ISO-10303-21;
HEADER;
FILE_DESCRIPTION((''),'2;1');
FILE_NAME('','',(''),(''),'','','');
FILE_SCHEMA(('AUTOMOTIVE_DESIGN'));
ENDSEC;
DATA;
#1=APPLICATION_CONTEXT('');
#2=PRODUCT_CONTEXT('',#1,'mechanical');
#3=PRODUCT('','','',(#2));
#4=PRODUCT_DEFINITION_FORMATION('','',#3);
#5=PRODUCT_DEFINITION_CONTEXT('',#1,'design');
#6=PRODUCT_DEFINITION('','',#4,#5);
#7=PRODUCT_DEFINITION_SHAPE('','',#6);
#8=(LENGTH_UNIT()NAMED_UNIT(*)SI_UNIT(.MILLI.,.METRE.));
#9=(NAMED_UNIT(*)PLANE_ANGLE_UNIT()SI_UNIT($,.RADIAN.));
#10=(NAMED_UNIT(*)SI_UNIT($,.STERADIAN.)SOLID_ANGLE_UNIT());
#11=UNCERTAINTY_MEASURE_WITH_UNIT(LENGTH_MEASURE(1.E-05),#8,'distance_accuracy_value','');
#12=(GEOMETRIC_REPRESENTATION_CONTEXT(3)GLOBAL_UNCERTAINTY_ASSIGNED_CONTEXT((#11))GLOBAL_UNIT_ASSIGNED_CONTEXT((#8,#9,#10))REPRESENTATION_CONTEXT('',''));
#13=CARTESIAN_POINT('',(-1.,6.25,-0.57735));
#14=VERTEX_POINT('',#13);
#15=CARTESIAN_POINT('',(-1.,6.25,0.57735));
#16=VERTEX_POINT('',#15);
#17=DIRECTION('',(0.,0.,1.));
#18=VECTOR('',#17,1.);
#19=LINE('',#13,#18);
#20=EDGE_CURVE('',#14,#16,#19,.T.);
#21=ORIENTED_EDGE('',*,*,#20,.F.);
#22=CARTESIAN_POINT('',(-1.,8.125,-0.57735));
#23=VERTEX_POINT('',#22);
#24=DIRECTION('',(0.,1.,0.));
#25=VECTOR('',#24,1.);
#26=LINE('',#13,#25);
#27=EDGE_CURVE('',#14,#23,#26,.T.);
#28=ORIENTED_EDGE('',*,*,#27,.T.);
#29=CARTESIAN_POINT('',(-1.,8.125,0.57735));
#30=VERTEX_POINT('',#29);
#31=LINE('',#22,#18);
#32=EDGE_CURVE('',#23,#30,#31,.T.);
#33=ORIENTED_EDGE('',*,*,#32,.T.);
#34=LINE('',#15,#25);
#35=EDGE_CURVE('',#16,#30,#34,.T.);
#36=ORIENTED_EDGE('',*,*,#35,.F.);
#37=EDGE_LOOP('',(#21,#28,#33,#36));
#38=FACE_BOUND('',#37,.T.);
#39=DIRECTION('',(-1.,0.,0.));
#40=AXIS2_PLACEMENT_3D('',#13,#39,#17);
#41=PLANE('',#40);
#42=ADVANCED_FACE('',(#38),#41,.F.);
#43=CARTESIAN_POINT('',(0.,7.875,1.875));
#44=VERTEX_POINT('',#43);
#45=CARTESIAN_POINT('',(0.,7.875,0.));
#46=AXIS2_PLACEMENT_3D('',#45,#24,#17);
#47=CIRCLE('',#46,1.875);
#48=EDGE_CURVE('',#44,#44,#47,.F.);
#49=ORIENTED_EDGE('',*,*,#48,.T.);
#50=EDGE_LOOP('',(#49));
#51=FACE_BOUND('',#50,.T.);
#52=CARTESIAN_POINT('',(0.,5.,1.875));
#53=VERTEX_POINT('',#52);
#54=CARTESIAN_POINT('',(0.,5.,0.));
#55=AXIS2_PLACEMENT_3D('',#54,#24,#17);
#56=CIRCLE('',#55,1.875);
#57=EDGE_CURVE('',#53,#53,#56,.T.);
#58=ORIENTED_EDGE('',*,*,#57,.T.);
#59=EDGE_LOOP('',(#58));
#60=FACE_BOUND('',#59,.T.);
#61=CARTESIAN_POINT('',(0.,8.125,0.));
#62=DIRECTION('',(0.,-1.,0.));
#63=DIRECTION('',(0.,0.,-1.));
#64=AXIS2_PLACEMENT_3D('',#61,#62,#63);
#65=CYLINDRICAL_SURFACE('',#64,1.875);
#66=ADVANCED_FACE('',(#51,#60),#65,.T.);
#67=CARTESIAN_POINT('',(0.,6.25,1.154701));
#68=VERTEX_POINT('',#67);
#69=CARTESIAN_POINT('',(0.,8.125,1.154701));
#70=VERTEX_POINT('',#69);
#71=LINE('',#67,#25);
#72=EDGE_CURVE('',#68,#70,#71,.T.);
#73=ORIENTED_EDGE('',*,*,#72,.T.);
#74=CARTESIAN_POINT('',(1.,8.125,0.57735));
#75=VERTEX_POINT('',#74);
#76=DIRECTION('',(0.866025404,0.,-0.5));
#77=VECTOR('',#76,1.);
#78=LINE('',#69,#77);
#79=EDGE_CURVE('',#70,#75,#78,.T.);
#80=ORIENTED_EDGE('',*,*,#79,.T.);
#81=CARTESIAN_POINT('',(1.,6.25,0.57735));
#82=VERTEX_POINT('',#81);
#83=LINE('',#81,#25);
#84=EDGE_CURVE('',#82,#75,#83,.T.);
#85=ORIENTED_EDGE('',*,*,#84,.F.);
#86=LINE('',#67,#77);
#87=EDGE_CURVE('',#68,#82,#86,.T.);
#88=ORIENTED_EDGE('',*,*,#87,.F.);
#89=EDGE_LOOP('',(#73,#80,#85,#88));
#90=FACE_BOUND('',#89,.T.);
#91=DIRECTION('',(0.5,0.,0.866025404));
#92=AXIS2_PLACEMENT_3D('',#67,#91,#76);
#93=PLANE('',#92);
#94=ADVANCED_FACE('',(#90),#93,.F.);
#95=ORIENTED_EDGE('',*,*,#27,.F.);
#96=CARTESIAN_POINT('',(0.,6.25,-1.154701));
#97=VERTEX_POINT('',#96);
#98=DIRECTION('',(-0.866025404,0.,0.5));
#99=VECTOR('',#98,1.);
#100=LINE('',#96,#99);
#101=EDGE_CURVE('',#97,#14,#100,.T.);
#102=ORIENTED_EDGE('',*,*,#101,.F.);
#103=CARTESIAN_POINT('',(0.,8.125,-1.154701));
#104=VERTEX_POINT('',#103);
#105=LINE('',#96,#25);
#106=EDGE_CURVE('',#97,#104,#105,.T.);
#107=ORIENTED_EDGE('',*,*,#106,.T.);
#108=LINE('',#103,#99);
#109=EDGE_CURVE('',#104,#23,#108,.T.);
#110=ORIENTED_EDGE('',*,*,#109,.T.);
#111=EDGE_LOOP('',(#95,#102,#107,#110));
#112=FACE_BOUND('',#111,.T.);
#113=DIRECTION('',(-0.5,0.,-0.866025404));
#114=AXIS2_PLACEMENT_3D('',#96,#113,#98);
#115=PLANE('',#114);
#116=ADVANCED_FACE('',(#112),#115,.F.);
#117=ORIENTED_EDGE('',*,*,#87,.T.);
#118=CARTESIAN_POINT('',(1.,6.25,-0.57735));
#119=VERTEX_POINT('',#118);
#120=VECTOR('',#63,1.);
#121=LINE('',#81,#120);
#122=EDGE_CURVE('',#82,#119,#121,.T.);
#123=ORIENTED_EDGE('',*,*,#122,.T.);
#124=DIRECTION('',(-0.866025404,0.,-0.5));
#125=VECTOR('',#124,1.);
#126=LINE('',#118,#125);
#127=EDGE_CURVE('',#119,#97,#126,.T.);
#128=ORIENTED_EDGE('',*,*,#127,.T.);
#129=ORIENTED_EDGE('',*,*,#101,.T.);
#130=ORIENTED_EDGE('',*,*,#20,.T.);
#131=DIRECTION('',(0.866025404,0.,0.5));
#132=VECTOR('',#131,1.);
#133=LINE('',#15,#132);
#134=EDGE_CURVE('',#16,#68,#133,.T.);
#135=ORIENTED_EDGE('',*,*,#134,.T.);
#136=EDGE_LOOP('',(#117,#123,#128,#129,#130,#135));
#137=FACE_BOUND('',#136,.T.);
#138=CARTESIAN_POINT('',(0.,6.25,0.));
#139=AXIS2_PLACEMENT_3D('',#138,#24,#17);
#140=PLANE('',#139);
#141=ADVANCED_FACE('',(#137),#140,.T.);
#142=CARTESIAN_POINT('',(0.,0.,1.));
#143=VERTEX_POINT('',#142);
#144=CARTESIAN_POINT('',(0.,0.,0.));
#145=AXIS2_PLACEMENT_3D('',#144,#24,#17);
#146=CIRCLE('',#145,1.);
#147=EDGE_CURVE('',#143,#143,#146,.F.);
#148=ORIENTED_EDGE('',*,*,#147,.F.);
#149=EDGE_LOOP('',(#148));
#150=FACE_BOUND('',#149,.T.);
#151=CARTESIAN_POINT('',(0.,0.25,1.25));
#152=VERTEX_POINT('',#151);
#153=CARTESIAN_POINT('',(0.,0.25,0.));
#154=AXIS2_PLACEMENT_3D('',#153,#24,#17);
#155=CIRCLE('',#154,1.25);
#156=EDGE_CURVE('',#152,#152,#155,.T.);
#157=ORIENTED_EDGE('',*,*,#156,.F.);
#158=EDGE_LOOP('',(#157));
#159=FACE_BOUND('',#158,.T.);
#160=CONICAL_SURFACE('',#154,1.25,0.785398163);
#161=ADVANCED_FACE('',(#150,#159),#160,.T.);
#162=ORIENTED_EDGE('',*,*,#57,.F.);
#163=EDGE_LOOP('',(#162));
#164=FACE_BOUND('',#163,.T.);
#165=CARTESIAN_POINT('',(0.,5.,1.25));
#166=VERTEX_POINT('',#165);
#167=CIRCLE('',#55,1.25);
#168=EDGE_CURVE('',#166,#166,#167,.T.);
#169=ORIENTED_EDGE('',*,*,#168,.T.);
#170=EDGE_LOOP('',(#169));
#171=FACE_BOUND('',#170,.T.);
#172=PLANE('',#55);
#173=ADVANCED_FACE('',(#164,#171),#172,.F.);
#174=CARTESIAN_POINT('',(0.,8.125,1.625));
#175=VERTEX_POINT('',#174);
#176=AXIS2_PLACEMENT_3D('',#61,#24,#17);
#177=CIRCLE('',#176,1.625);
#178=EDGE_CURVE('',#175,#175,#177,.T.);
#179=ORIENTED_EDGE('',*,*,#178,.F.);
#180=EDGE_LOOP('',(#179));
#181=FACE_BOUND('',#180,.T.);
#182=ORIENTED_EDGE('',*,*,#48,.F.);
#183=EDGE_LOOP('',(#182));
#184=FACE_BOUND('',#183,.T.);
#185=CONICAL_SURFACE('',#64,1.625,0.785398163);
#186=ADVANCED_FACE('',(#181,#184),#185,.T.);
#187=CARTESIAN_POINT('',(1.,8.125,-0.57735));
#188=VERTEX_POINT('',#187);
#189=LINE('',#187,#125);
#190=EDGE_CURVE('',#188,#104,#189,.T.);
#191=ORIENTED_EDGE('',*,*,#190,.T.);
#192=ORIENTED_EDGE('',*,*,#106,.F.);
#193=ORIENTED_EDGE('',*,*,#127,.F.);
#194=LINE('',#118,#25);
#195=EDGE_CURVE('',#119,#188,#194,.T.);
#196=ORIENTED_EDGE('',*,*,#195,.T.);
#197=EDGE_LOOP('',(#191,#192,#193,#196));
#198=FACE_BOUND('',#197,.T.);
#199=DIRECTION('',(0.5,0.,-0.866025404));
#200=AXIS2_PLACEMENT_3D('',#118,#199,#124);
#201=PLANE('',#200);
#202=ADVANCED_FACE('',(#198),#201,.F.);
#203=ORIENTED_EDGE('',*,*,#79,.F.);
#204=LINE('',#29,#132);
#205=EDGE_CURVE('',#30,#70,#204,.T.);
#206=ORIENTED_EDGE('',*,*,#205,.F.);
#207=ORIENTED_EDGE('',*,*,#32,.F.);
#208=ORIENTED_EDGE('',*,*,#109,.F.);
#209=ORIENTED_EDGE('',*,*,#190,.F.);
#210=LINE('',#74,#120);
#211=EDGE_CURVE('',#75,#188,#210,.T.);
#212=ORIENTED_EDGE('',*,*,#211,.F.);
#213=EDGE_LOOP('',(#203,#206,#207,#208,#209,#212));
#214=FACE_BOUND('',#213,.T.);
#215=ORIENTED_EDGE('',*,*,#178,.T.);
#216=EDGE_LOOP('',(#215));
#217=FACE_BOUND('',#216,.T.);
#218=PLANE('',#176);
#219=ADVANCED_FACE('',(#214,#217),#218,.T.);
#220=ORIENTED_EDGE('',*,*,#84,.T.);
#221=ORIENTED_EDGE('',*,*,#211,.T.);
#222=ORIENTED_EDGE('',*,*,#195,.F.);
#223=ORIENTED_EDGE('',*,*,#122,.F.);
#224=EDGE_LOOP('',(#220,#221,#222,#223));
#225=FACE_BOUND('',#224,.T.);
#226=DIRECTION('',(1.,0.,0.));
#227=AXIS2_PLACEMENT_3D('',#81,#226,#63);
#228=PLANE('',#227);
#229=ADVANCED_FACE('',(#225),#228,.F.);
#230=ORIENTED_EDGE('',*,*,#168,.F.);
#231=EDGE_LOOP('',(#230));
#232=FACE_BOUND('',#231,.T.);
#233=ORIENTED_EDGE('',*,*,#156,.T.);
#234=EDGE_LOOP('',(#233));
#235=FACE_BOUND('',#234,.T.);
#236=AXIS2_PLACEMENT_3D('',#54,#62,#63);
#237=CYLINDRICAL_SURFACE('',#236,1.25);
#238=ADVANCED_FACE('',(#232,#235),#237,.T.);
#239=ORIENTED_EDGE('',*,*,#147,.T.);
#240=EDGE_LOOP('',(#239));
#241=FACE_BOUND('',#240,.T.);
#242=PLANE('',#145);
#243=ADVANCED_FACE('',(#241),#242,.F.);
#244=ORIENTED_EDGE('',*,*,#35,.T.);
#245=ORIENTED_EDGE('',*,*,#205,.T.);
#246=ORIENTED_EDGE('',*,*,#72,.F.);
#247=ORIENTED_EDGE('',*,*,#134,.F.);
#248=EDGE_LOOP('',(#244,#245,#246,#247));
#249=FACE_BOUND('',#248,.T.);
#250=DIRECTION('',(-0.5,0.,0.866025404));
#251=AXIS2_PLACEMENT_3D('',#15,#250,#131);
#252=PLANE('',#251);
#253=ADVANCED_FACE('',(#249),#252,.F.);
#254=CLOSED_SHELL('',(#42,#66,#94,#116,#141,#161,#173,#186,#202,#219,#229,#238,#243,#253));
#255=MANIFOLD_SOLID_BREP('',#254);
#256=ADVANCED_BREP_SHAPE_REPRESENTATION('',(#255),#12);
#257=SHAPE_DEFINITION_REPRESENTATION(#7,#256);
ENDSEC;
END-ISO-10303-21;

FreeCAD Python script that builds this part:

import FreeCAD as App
import Part
import Sketcher
from FreeCAD import Vector
Q = App.Units.Quantity


def edges_at(feature, points):
    """Names of the edges that pass closest to the given points."""
    edges = feature.Shape.Edges
    near = lambda p: min(range(len(edges)), key=lambda i: edges[i].distToShape(Part.Vertex(*p))[0])
    return sorted({f"Edge{near(p) + 1}" for p in points})


def add_polygon(sketch, points):
    """Adds a closed chain of lines whose ends are joined by coincident constraints."""
    first, n = sketch.GeometryCount, len(points)
    for a, b in zip(points, points[1:] + points[:1]):
        sketch.addGeometry(Part.LineSegment(App.Vector(*a, 0), App.Vector(*b, 0)), False)
    for i in range(n):
        sketch.addConstraint(Sketcher.Constraint("Coincident", first + i, 2, first + (i + 1) % n, 1))

doc = App.newDocument("Part")
body = doc.addObject("PartDesign::Body", "Body")

# Sketch on XZ plane
sketch1 = body.newObject("Sketcher::SketchObject", "Sketch")
sketch1.AttachmentSupport = (doc.getObject("XZ_Plane"), [""])
sketch1.MapMode = "FlatFace"
sketch1.addGeometry(Part.Circle(Vector(0, 0, 0), Vector(0, 0, 1), 1.25), False)
sketch1.addConstraint([
    Sketcher.Constraint("Coincident", 0, 3, -1, 1),
    Sketcher.Constraint("Diameter", 0, 2.5),
])
pad1 = body.newObject("PartDesign::Pad", "Pad")
pad1.Profile = sketch1
pad1.Length = 5
pad1.Reversed = True

# Sketch on XZ plane
sketch2 = body.newObject("Sketcher::SketchObject", "Sketch001")
sketch2.AttachmentSupport = (doc.getObject("XZ_Plane"), [""])
sketch2.MapMode = "FlatFace"
sketch2.AttachmentOffset = App.Placement(Vector(0, 0, -5), App.Rotation())
sketch2.addGeometry(Part.Circle(Vector(0, 0, 0), Vector(0, 0, 1), 1.875), False)
sketch2.addConstraint([
    Sketcher.Constraint("Coincident", 0, 3, -1, 1),
    Sketcher.Constraint("Diameter", 0, 3.75),
])
pad2 = body.newObject("PartDesign::Pad", "Pad001")
pad2.Profile = sketch2
pad2.Length = 3.125
pad2.Reversed = True

# Sketch on XZ plane
sketch3 = body.newObject("Sketcher::SketchObject", "Sketch002")
sketch3.AttachmentSupport = (doc.getObject("XZ_Plane"), [""])
sketch3.MapMode = "FlatFace"
sketch3.AttachmentOffset = App.Placement(Vector(0, 0, -8.125), App.Rotation())
add_polygon(sketch3, [(0, -1.154701), (-1, -0.57735), (-1, 0.57735), (0, 1.154701), (1, 0.57735), (1, -0.57735)])  # lines 0-5
sketch3.addConstraint([
    Sketcher.Constraint("Vertical", 1),
    Sketcher.Constraint("Vertical", 4),
    Sketcher.Constraint("Symmetric", 0, 2, 3, 2, -1, 1),
    Sketcher.Constraint("Symmetric", 2, 2, 5, 2, -1, 1),
    Sketcher.Constraint("PointOnObject", 2, 2, -2),
    Sketcher.Constraint("Parallel", 2, 5),
    Sketcher.Constraint("Horizontal", 1, 2, 3, 2),
    Sketcher.Constraint("Angle", 0, Q("150 deg")),
    Sketcher.Constraint("DistanceX", 0, 2, -1, 1, 1.0),
    Sketcher.Constraint("DistanceY", 1, 1, 1, 2, 1.154701),
])
pocket1 = body.newObject("PartDesign::Pocket", "Pocket")
pocket1.Profile = sketch3
pocket1.Length = 1.875
pocket1.Reversed = True
doc.recompute()

chamfer = body.newObject("PartDesign::Chamfer", "Chamfer")
chamfer.Base = (pocket1, edges_at(pocket1, [(0, 0, -1.25), (0, 8.125, -1.875)]))
chamfer.Size = 0.25

doc.recompute()
